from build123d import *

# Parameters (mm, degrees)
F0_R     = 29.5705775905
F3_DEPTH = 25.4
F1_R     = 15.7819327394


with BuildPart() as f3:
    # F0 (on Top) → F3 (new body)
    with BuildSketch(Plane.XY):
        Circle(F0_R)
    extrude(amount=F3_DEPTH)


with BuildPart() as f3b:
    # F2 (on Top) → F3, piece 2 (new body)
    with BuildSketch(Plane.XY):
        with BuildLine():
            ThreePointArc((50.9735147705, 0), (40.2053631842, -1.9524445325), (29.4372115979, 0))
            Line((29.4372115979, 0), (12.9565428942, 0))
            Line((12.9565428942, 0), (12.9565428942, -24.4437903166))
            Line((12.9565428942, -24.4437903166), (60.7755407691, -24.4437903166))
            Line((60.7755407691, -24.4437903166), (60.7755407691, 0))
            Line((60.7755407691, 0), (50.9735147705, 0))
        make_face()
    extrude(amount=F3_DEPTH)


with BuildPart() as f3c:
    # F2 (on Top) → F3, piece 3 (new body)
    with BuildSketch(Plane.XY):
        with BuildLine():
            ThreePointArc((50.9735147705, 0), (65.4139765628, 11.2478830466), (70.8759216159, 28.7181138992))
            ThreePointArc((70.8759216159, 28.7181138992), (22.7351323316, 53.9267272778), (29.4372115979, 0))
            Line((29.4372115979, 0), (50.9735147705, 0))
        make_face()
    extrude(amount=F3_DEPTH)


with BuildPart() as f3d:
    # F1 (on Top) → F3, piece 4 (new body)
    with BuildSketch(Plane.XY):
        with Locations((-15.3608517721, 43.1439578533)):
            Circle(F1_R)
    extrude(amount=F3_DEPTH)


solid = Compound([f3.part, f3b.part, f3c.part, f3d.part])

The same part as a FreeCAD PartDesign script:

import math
import FreeCAD as App
import Part
import Sketcher

V = App.Vector
Q = App.Units.Quantity

doc = App.newDocument("Part")
params = doc.addObject("Spreadsheet::Sheet", "Params")
for row, (alias, value) in enumerate([
    ("pad1_length", "1 in"),
    ("pad2_length", "1 in"),
    ("pad3_length", "1 in"),
    ("pad4_length", "1 in"),
], start=1):
    params.set(f"A{row}", alias)
    params.set(f"B{row}", "=" + value)
    params.setAlias(f"B{row}", alias)

body = doc.addObject("PartDesign::Body", "Body")

# Sketch on XY plane
sketch1 = body.newObject("Sketcher::SketchObject", "Sketch")
sketch1.AttachmentSupport = (doc.getObject("XY_Plane"), [""])
sketch1.MapMode = "FlatFace"
sketch1.addGeometry(Part.Circle(V(0, 0, 0), V(0, 0, 1), 29.570578), False)
sketch1.addConstraint([
    Sketcher.Constraint("Coincident", 0, 3, -1, 1),
    Sketcher.Constraint("Diameter", 0, Q("59.141155 mm")),
])
pad1 = body.newObject("PartDesign::Pad", "Pad")
pad1.Profile = sketch1
pad1.setExpression("Length", "Params.pad1_length")
body2 = doc.addObject("PartDesign::Body", "Body001")

# Sketch on XY plane
sketch2 = body2.newObject("Sketcher::SketchObject", "Sketch001")
sketch2.AttachmentSupport = (doc.getObject("XY_Plane001"), [""])
sketch2.MapMode = "FlatFace"
sketch2.addGeometry([
    Part.ArcOfCircle(Part.Circle(V(40.205363, 28.718114, 0), V(0, 0, 1), 30.670558), math.radians(-110.554049), math.radians(-69.445951)),  # 0
    Part.LineSegment(V(29.437212, 0, 0), V(12.956543, 0, 0)),  # 1
    Part.LineSegment(V(12.956543, 0, 0), V(12.956543, -24.44379, 0)),  # 2
    Part.LineSegment(V(12.956543, -24.44379, 0), V(60.775541, -24.44379, 0)),  # 3
    Part.LineSegment(V(60.775541, -24.44379, 0), V(60.775541, 0, 0)),  # 4
    Part.LineSegment(V(60.775541, 0, 0), V(50.973515, 0, 0)),  # 5
], False)
sketch2.addConstraint([
    Sketcher.Constraint("Coincident", 0, 1, 1, 1),
    Sketcher.Constraint("Coincident", 1, 2, 2, 1),
    Sketcher.Constraint("Coincident", 2, 2, 3, 1),
    Sketcher.Constraint("Coincident", 3, 2, 4, 1),
    Sketcher.Constraint("Coincident", 4, 2, 5, 1),
    Sketcher.Constraint("Coincident", 5, 2, 0, 2),
    Sketcher.Constraint("Horizontal", 1),
    Sketcher.Constraint("Vertical", 2),
    Sketcher.Constraint("Horizontal", 3),
    Sketcher.Constraint("Vertical", 4),
    Sketcher.Constraint("Horizontal", 5),
    Sketcher.Constraint("PointOnObject", 0, 1, -1),
    Sketcher.Constraint("PointOnObject", 4, 2, -1),
    Sketcher.Constraint("Radius", 0, Q("30.670558 mm")),
    Sketcher.Constraint("DistanceX", -1, 1, 1, 2, Q("0.5101001 in")),
    Sketcher.Constraint("DistanceX", 1, 2, 1, 1, Q("16.480669 mm")),
    Sketcher.Constraint("DistanceY", 2, 2, 2, 1, Q("24.44379 mm")),
    Sketcher.Constraint("DistanceX", 3, 1, 3, 2, Q("47.818998 mm")),
    Sketcher.Constraint("DistanceX", 5, 2, 5, 1, Q("9.802026 mm")),
])
pad2 = body2.newObject("PartDesign::Pad", "Pad001")
pad2.Profile = sketch2
pad2.setExpression("Length", "Params.pad2_length")
body3 = doc.addObject("PartDesign::Body", "Body002")

# Sketch on XY plane
sketch3 = body3.newObject("Sketcher::SketchObject", "Sketch002")
sketch3.AttachmentSupport = (doc.getObject("XY_Plane002"), [""])
sketch3.MapMode = "FlatFace"
sketch3.addGeometry([
    Part.ArcOfCircle(Part.Circle(V(40.205363, 28.718114, 0), V(0, 0, 1), 30.670558), math.radians(-69.445951), math.radians(0)),
    Part.ArcOfCircle(Part.Circle(V(40.205363, 28.718114, 0), V(0, 0, 1), 30.670558), math.radians(0), math.radians(249.445951)),
    Part.LineSegment(V(29.437212, 0, 0), V(50.973515, 0, 0)),
], False)
sketch3.addConstraint([
    Sketcher.Constraint("Tangent", 0, 2, 1, 1),
    Sketcher.Constraint("Coincident", 1, 2, 2, 1),
    Sketcher.Constraint("Coincident", 2, 2, 0, 1),
    Sketcher.Constraint("Horizontal", 2),
    Sketcher.Constraint("Equal", 0, 1),
    Sketcher.Constraint("PointOnObject", 1, 2, -1),
    Sketcher.Constraint("Horizontal", 1, 3, 0, 2),
    Sketcher.Constraint("Radius", 0, Q("30.670558 mm")),
    Sketcher.Constraint("DistanceX", 2, 1, 2, 2, Q("21.536303 mm")),
    Sketcher.Constraint("DistanceX", -1, 1, 0, 2, Q("70.875922 mm")),
])
pad3 = body3.newObject("PartDesign::Pad", "Pad002")
pad3.Profile = sketch3
pad3.setExpression("Length", "Params.pad3_length")
body4 = doc.addObject("PartDesign::Body", "Body003")

# Sketch on XY plane
sketch4 = body4.newObject("Sketcher::SketchObject", "Sketch003")
sketch4.AttachmentSupport = (doc.getObject("XY_Plane003"), [""])
sketch4.MapMode = "FlatFace"
sketch4.addGeometry(Part.Circle(V(-15.360852, 43.143958, 0), V(0, 0, 1), 15.781933), False)
sketch4.addConstraint([
    Sketcher.Constraint("Diameter", 0, Q("31.563865 mm")),
    Sketcher.Constraint("DistanceX", 0, 3, -1, 1, Q("15.360852 mm")),
    Sketcher.Constraint("DistanceY", -1, 1, 0, 3, Q("43.143958 mm")),
])
pad4 = body4.newObject("PartDesign::Pad", "Pad003")
pad4.Profile = sketch4
pad4.setExpression("Length", "Params.pad4_length")

doc.recompute()
